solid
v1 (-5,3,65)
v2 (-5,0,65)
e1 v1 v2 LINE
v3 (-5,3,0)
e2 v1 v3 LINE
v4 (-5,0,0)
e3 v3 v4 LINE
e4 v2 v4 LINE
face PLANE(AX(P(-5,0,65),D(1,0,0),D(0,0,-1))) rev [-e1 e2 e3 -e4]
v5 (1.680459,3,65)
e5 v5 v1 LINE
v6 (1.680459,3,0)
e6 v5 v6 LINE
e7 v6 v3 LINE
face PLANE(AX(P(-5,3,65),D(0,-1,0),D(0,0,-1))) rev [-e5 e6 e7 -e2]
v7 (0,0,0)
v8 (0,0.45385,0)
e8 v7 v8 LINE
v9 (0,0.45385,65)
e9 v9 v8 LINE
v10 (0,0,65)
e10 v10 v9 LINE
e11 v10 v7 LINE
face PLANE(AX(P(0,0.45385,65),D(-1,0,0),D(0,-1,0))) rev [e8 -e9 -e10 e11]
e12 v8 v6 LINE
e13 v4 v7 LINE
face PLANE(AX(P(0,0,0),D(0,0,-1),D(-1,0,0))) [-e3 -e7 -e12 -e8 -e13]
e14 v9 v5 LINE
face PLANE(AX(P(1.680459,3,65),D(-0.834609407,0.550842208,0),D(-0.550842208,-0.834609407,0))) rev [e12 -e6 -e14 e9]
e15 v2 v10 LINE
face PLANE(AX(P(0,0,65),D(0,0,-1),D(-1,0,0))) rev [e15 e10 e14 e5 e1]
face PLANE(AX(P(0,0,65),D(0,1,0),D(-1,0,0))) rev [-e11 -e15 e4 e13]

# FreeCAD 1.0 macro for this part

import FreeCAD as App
import Part
import Sketcher


def add_polygon(sketch, points):
    """Adds a closed chain of lines whose ends are joined by coincident constraints."""
    first, n = sketch.GeometryCount, len(points)
    for a, b in zip(points, points[1:] + points[:1]):
        sketch.addGeometry(Part.LineSegment(App.Vector(*a, 0), App.Vector(*b, 0)), False)
    for i in range(n):
        sketch.addConstraint(Sketcher.Constraint("Coincident", first + i, 2, first + (i + 1) % n, 1))

doc = App.newDocument("Part")
body = doc.addObject("PartDesign::Body", "Body")

sketch1 = body.newObject("Sketcher::SketchObject", "Sketch")
sketch1.AttachmentSupport = (doc.getObject("XY_Plane"), [""])
sketch1.MapMode = "FlatFace"
add_polygon(sketch1, [(1.680459, 3), (-5, 3), (-5, 0), (0, 0), (0, 0.45385)])
sketch1.addConstraint([
    Sketcher.Constraint("Horizontal", 0),
    Sketcher.Constraint("Vertical", 1),
    Sketcher.Constraint("Horizontal", 2),
    Sketcher.Constraint("Vertical", 3),
    Sketcher.Constraint("Coincident", 2, 2, -1, 1),
    Sketcher.Constraint("DistanceX", 2, 1, 2, 2, 5.0),
    Sketcher.Constraint("DistanceY", 1, 2, 1, 1, 3.0),
    Sketcher.Constraint("DistanceX", 0, 2, 0, 1, 6.680459),
    Sketcher.Constraint("DistanceY", 3, 1, 3, 2, 0.45385),
])
pad1 = body.newObject("PartDesign::Pad", "Pad")
pad1.Profile = sketch1
pad1.Length = 65

doc.recompute()
